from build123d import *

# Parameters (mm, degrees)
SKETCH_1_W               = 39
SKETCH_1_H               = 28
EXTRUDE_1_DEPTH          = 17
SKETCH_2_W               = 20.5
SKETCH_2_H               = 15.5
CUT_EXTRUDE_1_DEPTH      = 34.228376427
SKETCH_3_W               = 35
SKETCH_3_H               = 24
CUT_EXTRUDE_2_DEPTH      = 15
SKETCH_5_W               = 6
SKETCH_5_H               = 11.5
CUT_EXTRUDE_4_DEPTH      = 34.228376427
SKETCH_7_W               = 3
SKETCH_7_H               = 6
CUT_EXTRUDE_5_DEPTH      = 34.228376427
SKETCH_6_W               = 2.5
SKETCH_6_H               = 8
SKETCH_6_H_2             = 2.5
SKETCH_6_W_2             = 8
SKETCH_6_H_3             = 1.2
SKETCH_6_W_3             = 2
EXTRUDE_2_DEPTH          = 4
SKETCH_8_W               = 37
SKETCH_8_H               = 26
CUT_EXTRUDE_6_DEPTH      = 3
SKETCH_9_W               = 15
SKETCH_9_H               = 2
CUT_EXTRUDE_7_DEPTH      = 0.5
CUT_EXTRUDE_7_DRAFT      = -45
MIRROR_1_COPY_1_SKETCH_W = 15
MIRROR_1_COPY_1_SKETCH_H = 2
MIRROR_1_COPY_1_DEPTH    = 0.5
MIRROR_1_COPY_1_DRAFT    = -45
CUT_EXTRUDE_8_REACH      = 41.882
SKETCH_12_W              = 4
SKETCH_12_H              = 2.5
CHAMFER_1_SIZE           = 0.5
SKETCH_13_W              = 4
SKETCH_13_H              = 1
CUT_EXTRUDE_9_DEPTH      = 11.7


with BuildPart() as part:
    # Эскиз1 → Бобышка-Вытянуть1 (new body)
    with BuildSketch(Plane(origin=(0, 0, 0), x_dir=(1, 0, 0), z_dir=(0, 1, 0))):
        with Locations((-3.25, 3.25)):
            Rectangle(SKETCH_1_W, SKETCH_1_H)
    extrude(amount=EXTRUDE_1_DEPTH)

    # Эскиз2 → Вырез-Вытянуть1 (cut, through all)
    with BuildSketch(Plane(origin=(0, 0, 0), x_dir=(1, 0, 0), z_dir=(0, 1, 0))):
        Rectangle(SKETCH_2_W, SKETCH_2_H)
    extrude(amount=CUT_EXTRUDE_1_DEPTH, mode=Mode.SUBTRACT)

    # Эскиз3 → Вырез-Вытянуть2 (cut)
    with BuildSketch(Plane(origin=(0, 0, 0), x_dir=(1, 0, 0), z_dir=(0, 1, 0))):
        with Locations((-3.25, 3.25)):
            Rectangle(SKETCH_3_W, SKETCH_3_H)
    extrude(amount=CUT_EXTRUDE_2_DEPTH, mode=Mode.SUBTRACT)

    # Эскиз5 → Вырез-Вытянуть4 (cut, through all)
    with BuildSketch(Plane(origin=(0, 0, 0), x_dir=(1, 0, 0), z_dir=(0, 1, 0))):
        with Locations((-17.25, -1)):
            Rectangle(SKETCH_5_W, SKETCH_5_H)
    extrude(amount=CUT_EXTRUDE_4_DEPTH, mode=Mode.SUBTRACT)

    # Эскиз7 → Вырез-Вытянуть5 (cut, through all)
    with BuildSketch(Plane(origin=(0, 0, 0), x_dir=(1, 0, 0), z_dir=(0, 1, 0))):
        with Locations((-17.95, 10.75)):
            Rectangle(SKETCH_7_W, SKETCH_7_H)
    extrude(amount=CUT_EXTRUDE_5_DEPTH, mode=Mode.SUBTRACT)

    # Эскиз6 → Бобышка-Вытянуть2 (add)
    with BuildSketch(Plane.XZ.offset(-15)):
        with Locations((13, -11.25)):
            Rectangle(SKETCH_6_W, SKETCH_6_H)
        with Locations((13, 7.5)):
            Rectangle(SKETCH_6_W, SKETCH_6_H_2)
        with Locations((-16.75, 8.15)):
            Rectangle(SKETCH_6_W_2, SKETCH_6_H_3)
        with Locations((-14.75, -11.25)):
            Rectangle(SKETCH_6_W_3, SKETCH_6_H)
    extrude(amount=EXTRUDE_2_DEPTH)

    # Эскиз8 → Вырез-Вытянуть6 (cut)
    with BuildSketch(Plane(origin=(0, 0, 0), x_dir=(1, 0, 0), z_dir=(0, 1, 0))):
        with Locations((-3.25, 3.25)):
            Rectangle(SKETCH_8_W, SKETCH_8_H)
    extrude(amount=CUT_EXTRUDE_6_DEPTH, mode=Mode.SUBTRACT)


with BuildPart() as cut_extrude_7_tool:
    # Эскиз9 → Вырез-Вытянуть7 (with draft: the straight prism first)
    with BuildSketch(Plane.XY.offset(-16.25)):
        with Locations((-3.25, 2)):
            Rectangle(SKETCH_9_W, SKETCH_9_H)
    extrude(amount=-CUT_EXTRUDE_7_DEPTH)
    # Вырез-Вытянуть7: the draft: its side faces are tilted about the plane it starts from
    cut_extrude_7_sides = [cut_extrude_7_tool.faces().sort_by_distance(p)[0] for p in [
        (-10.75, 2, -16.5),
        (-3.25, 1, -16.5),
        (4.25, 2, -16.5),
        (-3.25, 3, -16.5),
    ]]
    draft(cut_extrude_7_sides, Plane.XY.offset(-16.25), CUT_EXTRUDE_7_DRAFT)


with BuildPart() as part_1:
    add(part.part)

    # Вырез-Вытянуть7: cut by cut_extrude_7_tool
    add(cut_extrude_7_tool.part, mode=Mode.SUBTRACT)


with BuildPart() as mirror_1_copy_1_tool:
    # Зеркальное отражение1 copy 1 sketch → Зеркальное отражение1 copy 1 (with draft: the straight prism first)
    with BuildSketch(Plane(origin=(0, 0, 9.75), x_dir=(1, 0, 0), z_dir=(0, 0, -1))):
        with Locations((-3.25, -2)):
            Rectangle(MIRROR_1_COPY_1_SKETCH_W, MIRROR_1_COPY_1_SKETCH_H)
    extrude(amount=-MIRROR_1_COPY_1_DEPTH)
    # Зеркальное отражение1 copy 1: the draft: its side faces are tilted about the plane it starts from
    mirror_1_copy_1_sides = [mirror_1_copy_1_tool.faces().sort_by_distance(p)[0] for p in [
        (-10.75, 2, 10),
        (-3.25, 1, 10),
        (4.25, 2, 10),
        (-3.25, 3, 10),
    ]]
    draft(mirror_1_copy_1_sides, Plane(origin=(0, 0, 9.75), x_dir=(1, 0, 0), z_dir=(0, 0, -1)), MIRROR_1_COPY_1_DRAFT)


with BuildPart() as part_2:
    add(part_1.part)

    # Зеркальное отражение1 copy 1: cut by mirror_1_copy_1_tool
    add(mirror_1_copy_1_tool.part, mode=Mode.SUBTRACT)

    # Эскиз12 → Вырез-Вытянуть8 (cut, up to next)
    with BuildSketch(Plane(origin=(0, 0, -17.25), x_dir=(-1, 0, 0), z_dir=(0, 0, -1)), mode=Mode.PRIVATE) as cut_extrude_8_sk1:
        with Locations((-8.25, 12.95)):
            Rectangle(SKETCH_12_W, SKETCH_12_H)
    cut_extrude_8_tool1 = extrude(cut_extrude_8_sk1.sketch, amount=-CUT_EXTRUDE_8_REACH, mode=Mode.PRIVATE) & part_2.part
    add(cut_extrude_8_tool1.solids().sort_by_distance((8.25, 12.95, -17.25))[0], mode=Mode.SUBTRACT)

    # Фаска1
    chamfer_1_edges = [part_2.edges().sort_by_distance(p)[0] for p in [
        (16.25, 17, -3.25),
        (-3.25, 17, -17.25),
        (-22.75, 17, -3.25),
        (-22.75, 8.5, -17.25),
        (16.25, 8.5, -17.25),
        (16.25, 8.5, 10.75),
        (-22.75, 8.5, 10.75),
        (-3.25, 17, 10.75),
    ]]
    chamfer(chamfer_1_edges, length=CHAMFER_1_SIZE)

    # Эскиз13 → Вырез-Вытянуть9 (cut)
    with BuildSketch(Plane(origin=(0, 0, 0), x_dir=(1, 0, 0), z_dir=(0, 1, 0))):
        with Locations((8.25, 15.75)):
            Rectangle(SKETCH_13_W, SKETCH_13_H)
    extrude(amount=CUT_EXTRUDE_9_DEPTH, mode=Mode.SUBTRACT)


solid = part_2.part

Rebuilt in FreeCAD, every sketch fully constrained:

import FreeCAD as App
import Part
import Sketcher
Q = App.Units.Quantity


def edges_at(feature, points):
    """Names of the edges that pass closest to the given points."""
    edges = feature.Shape.Edges
    near = lambda p: min(range(len(edges)), key=lambda i: edges[i].distToShape(Part.Vertex(*p))[0])
    return sorted({f"Edge{near(p) + 1}" for p in points})


def faces_at(feature, points):
    """Names of the faces that lie closest to the given points."""
    faces = feature.Shape.Faces
    near = lambda p: min(range(len(faces)), key=lambda i: faces[i].distToShape(Part.Vertex(*p))[0])
    return sorted({f"Face{near(p) + 1}" for p in points})


def add_polygon(sketch, points):
    """Adds a closed chain of lines whose ends are joined by coincident constraints."""
    first, n = sketch.GeometryCount, len(points)
    for a, b in zip(points, points[1:] + points[:1]):
        sketch.addGeometry(Part.LineSegment(App.Vector(*a, 0), App.Vector(*b, 0)), False)
    for i in range(n):
        sketch.addConstraint(Sketcher.Constraint("Coincident", first + i, 2, first + (i + 1) % n, 1))

doc = App.newDocument("Part")
body = doc.addObject("PartDesign::Body", "Body")

sketch1 = body.newObject("Sketcher::SketchObject", "Sketch")
sketch1.AttachmentSupport = (doc.getObject("XZ_Plane"), [""])
sketch1.MapMode = "FlatFace"
add_polygon(sketch1, [(-22.75, -17.25), (-22.75, 10.75), (16.25, 10.75), (16.25, -17.25)])
sketch1.addConstraint([
    Sketcher.Constraint("Vertical", 0),
    Sketcher.Constraint("Horizontal", 1),
    Sketcher.Constraint("Vertical", 2),
    Sketcher.Constraint("Horizontal", 3),
    Sketcher.Constraint("DistanceX", 1, 1, 1, 2, Q("39 mm")),
    Sketcher.Constraint("DistanceY", 0, 1, 0, 2, Q("28 mm")),
    Sketcher.Constraint("DistanceX", 0, 2, -1, 1, Q("22.75 mm")),
    Sketcher.Constraint("DistanceY", -1, 1, 0, 2, Q("10.75 mm")),
])
pad1 = body.newObject("PartDesign::Pad", "Pad")
pad1.Profile = sketch1
pad1.Length = 17
pad1.Reversed = True

sketch2 = body.newObject("Sketcher::SketchObject", "Sketch001")
sketch2.AttachmentSupport = (doc.getObject("XZ_Plane"), [""])
sketch2.MapMode = "FlatFace"
add_polygon(sketch2, [(-10.25, -7.75), (-10.25, 7.75), (10.25, 7.75), (10.25, -7.75)])
sketch2.addConstraint([
    Sketcher.Constraint("Vertical", 0),
    Sketcher.Constraint("Horizontal", 1),
    Sketcher.Constraint("Vertical", 2),
    Sketcher.Constraint("Horizontal", 3),
    Sketcher.Constraint("Symmetric", 0, 2, 2, 2, -1, 1),
    Sketcher.Constraint("DistanceX", 1, 1, 1, 2, Q("20.5 mm")),
    Sketcher.Constraint("DistanceY", 0, 1, 0, 2, Q("15.5 mm")),
])
pocket1 = body.newObject("PartDesign::Pocket", "Pocket")
pocket1.Profile = sketch2
pocket1.Type = "ThroughAll"

sketch3 = body.newObject("Sketcher::SketchObject", "Sketch002")
sketch3.AttachmentSupport = (doc.getObject("XZ_Plane"), [""])
sketch3.MapMode = "FlatFace"
add_polygon(sketch3, [(-20.75, -15.25), (-20.75, 8.75), (14.25, 8.75), (14.25, -15.25)])
sketch3.addConstraint([
    Sketcher.Constraint("Vertical", 0),
    Sketcher.Constraint("Horizontal", 1),
    Sketcher.Constraint("Vertical", 2),
    Sketcher.Constraint("Horizontal", 3),
    Sketcher.Constraint("DistanceX", 1, 1, 1, 2, Q("35 mm")),
    Sketcher.Constraint("DistanceY", 0, 1, 0, 2, Q("24 mm")),
    Sketcher.Constraint("DistanceX", 0, 2, -1, 1, Q("20.75 mm")),
    Sketcher.Constraint("DistanceY", -1, 1, 0, 2, Q("8.75 mm")),
])
pocket2 = body.newObject("PartDesign::Pocket", "Pocket001")
pocket2.Profile = sketch3
pocket2.Length = 15

sketch4 = body.newObject("Sketcher::SketchObject", "Sketch003")
sketch4.AttachmentSupport = (doc.getObject("XZ_Plane"), [""])
sketch4.MapMode = "FlatFace"
add_polygon(sketch4, [(-20.25, -4.75), (-20.25, 6.75), (-14.25, 6.75), (-14.25, -4.75)])
sketch4.addConstraint([
    Sketcher.Constraint("Vertical", 0),
    Sketcher.Constraint("Horizontal", 1),
    Sketcher.Constraint("Vertical", 2),
    Sketcher.Constraint("Horizontal", 3),
    Sketcher.Constraint("DistanceX", 1, 1, 1, 2, Q("6 mm")),
    Sketcher.Constraint("DistanceY", 0, 1, 0, 2, Q("11.5 mm")),
    Sketcher.Constraint("DistanceX", 0, 2, -1, 1, Q("20.25 mm")),
    Sketcher.Constraint("DistanceY", -1, 1, 0, 2, Q("6.75 mm")),
])
pocket3 = body.newObject("PartDesign::Pocket", "Pocket002")
pocket3.Profile = sketch4
pocket3.Type = "ThroughAll"

sketch5 = body.newObject("Sketcher::SketchObject", "Sketch004")
sketch5.AttachmentSupport = (doc.getObject("XZ_Plane"), [""])
sketch5.MapMode = "FlatFace"
add_polygon(sketch5, [(-19.45, -13.75), (-19.45, -7.75), (-16.45, -7.75), (-16.45, -13.75)])
sketch5.addConstraint([
    Sketcher.Constraint("Vertical", 0),
    Sketcher.Constraint("Horizontal", 1),
    Sketcher.Constraint("Vertical", 2),
    Sketcher.Constraint("Horizontal", 3),
    Sketcher.Constraint("DistanceX", 1, 1, 1, 2, Q("3 mm")),
    Sketcher.Constraint("DistanceY", 0, 1, 0, 2, Q("6 mm")),
    Sketcher.Constraint("DistanceX", 0, 2, -1, 1, Q("19.45 mm")),
    Sketcher.Constraint("DistanceY", 0, 2, -1, 1, Q("7.75 mm")),
])
pocket4 = body.newObject("PartDesign::Pocket", "Pocket003")
pocket4.Profile = sketch5
pocket4.Type = "ThroughAll"

sketch6 = body.newObject("Sketcher::SketchObject", "Sketch005")
sketch6.AttachmentSupport = (doc.getObject("XZ_Plane"), [""])
sketch6.MapMode = "FlatFace"
sketch6.AttachmentOffset = App.Placement(App.Vector(0, 0, -15), App.Rotation())
add_polygon(sketch6, [(11.75, -7.25), (11.75, -15.25), (14.25, -15.25), (14.25, -7.25)])
add_polygon(sketch6, [(11.75, 8.75), (11.75, 6.25), (14.25, 6.25), (14.25, 8.75)])
add_polygon(sketch6, [(-20.75, 8.75), (-20.75, 7.55), (-12.75, 7.55), (-12.75, 8.75)])
add_polygon(sketch6, [(-15.75, -7.25), (-15.75, -15.25), (-13.75, -15.25), (-13.75, -7.25)])
sketch6.addConstraint([
    Sketcher.Constraint("Vertical", 0),
    Sketcher.Constraint("Horizontal", 1),
    Sketcher.Constraint("Vertical", 2),
    Sketcher.Constraint("Horizontal", 3),
    Sketcher.Constraint("Vertical", 4),
    Sketcher.Constraint("Horizontal", 5),
    Sketcher.Constraint("Vertical", 6),
    Sketcher.Constraint("Horizontal", 7),
    Sketcher.Constraint("Vertical", 8),
    Sketcher.Constraint("Horizontal", 9),
    Sketcher.Constraint("Vertical", 10),
    Sketcher.Constraint("Horizontal", 11),
    Sketcher.Constraint("Vertical", 12),
    Sketcher.Constraint("Horizontal", 13),
    Sketcher.Constraint("Vertical", 14),
    Sketcher.Constraint("Horizontal", 15),
    Sketcher.Constraint("Horizontal", 7, 2, 10, 2),
    Sketcher.Constraint("Horizontal", 1, 2, 12, 2),
    Sketcher.Constraint("Horizontal", 3, 2, 14, 2),
    Sketcher.Constraint("Vertical", 3, 2, 4, 2),
    Sketcher.Constraint("Vertical", 2, 2, 5, 2),
    Sketcher.Constraint("Equal", 11, 0),
    Sketcher.Constraint("Equal", 7, 4),
    Sketcher.Constraint("DistanceX", 9, 1, 9, 2, Q("8 mm")),
    Sketcher.Constraint("DistanceX", 13, 1, 13, 2, Q("2 mm")),
    Sketcher.Constraint("DistanceX", 1, 1, 1, 2, Q("2.5 mm")),
    Sketcher.Constraint("DistanceY", 8, 2, 8, 1, Q("1.2 mm")),
    Sketcher.Constraint("DistanceY", 2, 2, 6, 2, Q("16 mm")),
    Sketcher.Constraint("DistanceX", 8, 2, 6, 2, Q("35 mm")),
    Sketcher.Constraint("DistanceX", 12, 2, 9, 2, Q("3 mm")),
    Sketcher.Constraint("DistanceX", -1, 1, 0, 2, Q("11.75 mm")),
    Sketcher.Constraint("DistanceY", 0, 2, -1, 1, Q("15.25 mm")),
])
pad2 = body.newObject("PartDesign::Pad", "Pad001")
pad2.Profile = sketch6
pad2.Length = 4

sketch7 = body.newObject("Sketcher::SketchObject", "Sketch006")
sketch7.AttachmentSupport = (doc.getObject("XZ_Plane"), [""])
sketch7.MapMode = "FlatFace"
add_polygon(sketch7, [(-21.75, -16.25), (-21.75, 9.75), (15.25, 9.75), (15.25, -16.25)])
sketch7.addConstraint([
    Sketcher.Constraint("Vertical", 0),
    Sketcher.Constraint("Horizontal", 1),
    Sketcher.Constraint("Vertical", 2),
    Sketcher.Constraint("Horizontal", 3),
    Sketcher.Constraint("DistanceX", 1, 1, 1, 2, Q("37 mm")),
    Sketcher.Constraint("DistanceY", 0, 1, 0, 2, Q("26 mm")),
    Sketcher.Constraint("DistanceX", 0, 2, -1, 1, Q("21.75 mm")),
    Sketcher.Constraint("DistanceY", -1, 1, 0, 2, Q("9.75 mm")),
])
pocket5 = body.newObject("PartDesign::Pocket", "Pocket004")
pocket5.Profile = sketch7
pocket5.Length = 3
body2 = doc.addObject("PartDesign::Body", "Body001")

sketch8 = body2.newObject("Sketcher::SketchObject", "Sketch007")
sketch8.AttachmentSupport = (doc.getObject("XY_Plane001"), [""])
sketch8.MapMode = "FlatFace"
sketch8.AttachmentOffset = App.Placement(App.Vector(0, 0, -16.25), App.Rotation())
add_polygon(sketch8, [(-10.75, 3), (-10.75, 1), (4.25, 1), (4.25, 3)])
sketch8.addConstraint([
    Sketcher.Constraint("Vertical", 0),
    Sketcher.Constraint("Horizontal", 1),
    Sketcher.Constraint("Vertical", 2),
    Sketcher.Constraint("Horizontal", 3),
    Sketcher.Constraint("DistanceX", 1, 1, 1, 2, Q("15 mm")),
    Sketcher.Constraint("DistanceY", 0, 2, 0, 1, Q("2 mm")),
    Sketcher.Constraint("DistanceY", -1, 1, 0, 2, Q("1 mm")),
    Sketcher.Constraint("DistanceX", 0, 2, -1, 1, Q("10.75 mm")),
])
pad3 = body2.newObject("PartDesign::Pad", "Pad002")
pad3.Profile = sketch8
pad3.Length = 0.5
pad3.Reversed = True
doc.recompute()

datumplane = body2.newObject("PartDesign::Plane", "DatumPlane")
datumplane.AttachmentSupport = (doc.getObject("XY_Plane001"), [""])
datumplane.MapMode = "FlatFace"
datumplane.AttachmentOffset = App.Placement(App.Vector(0, 0, -16.25), App.Rotation())
draft = body2.newObject("PartDesign::Draft", "Draft")
draft.Base = (pad3, faces_at(pad3, [
    (-10.75, 2, -16.5),
    (-3.25, 1, -16.5),
    (4.25, 2, -16.5),
    (-3.25, 3, -16.5),
]))
draft.NeutralPlane = (datumplane, [""])
draft.Angle = 45
draft.Reversed = True
doc.recompute()

boolean = body.newObject("PartDesign::Boolean", "Boolean")
boolean.Type = "Cut"
boolean.addObjects([body2])
body3 = doc.addObject("PartDesign::Body", "Body002")

sketch9 = body3.newObject("Sketcher::SketchObject", "Sketch008")
sketch9.AttachmentSupport = (doc.getObject("XY_Plane002"), [""])
sketch9.MapMode = "FlatFace"
sketch9.AttachmentOffset = App.Placement(App.Vector(0, 0, 9.75), App.Rotation())
add_polygon(sketch9, [(-10.75, 1), (-10.75, 3), (4.25, 3), (4.25, 1)])
sketch9.addConstraint([
    Sketcher.Constraint("Vertical", 0),
    Sketcher.Constraint("Horizontal", 1),
    Sketcher.Constraint("Vertical", 2),
    Sketcher.Constraint("Horizontal", 3),
    Sketcher.Constraint("DistanceX", 1, 1, 1, 2, Q("15 mm")),
    Sketcher.Constraint("DistanceY", 0, 1, 0, 2, Q("2 mm")),
    Sketcher.Constraint("DistanceY", -1, 1, 0, 2, Q("3 mm")),
    Sketcher.Constraint("DistanceX", 0, 2, -1, 1, Q("10.75 mm")),
])
pad4 = body3.newObject("PartDesign::Pad", "Pad003")
pad4.Profile = sketch9
pad4.Length = 0.5
doc.recompute()

datumplane2 = body3.newObject("PartDesign::Plane", "DatumPlane001")
datumplane2.AttachmentSupport = (doc.getObject("XY_Plane002"), [""])
datumplane2.MapMode = "FlatFace"
datumplane2.AttachmentOffset = App.Placement(App.Vector(0, 0, 9.75), App.Rotation())
draft2 = body3.newObject("PartDesign::Draft", "Draft001")
draft2.Base = (pad4, faces_at(pad4, [
    (-10.75, 2, 10),
    (-3.25, 1, 10),
    (4.25, 2, 10),
    (-3.25, 3, 10),
]))
draft2.NeutralPlane = (datumplane2, [""])
draft2.Angle = 45
draft2.Reversed = False
doc.recompute()

boolean2 = body.newObject("PartDesign::Boolean", "Boolean001")
boolean2.Type = "Cut"
boolean2.addObjects([body3])

sketch10 = body.newObject("Sketcher::SketchObject", "Sketch009")
sketch10.AttachmentSupport = (doc.getObject("XY_Plane"), [""])
sketch10.MapMode = "FlatFace"
sketch10.AttachmentOffset = App.Placement(App.Vector(0, 0, -17.25), App.Rotation())
add_polygon(sketch10, [(10.25, 14.2), (10.25, 11.7), (6.25, 11.7), (6.25, 14.2)])
sketch10.addConstraint([
    Sketcher.Constraint("Vertical", 0),
    Sketcher.Constraint("Horizontal", 1),
    Sketcher.Constraint("Vertical", 2),
    Sketcher.Constraint("Horizontal", 3),
    Sketcher.Constraint("DistanceX", 1, 2, 1, 1, Q("4 mm")),
    Sketcher.Constraint("DistanceY", 0, 2, 0, 1, Q("2.5 mm")),
    Sketcher.Constraint("DistanceY", -1, 1, 0, 2, Q("11.7 mm")),
    Sketcher.Constraint("DistanceX", -1, 1, 0, 2, Q("10.25 mm")),
])
pocket6 = body.newObject("PartDesign::Pocket", "Pocket005")
pocket6.Profile = sketch10
pocket6.Type = "UpToFirst"
pocket6.Reversed = True
doc.recompute()

chamfer = body.newObject("PartDesign::Chamfer", "Chamfer")
chamfer.Base = (pocket6, edges_at(pocket6, [
    (16.25, 17, -3.25),
    (-3.25, 17, -17.25),
    (-22.75, 17, -3.25),
    (-22.75, 8.5, -17.25),
    (16.25, 8.5, -17.25),
    (16.25, 8.5, 10.75),
    (-22.75, 8.5, 10.75),
    (-3.25, 17, 10.75),
]))
chamfer.Size = 0.5

sketch11 = body.newObject("Sketcher::SketchObject", "Sketch010")
sketch11.AttachmentSupport = (doc.getObject("XZ_Plane"), [""])
sketch11.MapMode = "FlatFace"
add_polygon(sketch11, [(6.25, -16.25), (6.25, -15.25), (10.25, -15.25), (10.25, -16.25)])
sketch11.addConstraint([
    Sketcher.Constraint("Vertical", 0),
    Sketcher.Constraint("Horizontal", 1),
    Sketcher.Constraint("Vertical", 2),
    Sketcher.Constraint("Horizontal", 3),
    Sketcher.Constraint("DistanceX", 1, 1, 1, 2, Q("4 mm")),
    Sketcher.Constraint("DistanceY", 0, 1, 0, 2, Q("1 mm")),
    Sketcher.Constraint("DistanceX", -1, 1, 0, 2, Q("6.25 mm")),
    Sketcher.Constraint("DistanceY", 0, 2, -1, 1, Q("15.25 mm")),
])
pocket7 = body.newObject("PartDesign::Pocket", "Pocket006")
pocket7.Profile = sketch11
pocket7.Length = 11.7

doc.recompute()
